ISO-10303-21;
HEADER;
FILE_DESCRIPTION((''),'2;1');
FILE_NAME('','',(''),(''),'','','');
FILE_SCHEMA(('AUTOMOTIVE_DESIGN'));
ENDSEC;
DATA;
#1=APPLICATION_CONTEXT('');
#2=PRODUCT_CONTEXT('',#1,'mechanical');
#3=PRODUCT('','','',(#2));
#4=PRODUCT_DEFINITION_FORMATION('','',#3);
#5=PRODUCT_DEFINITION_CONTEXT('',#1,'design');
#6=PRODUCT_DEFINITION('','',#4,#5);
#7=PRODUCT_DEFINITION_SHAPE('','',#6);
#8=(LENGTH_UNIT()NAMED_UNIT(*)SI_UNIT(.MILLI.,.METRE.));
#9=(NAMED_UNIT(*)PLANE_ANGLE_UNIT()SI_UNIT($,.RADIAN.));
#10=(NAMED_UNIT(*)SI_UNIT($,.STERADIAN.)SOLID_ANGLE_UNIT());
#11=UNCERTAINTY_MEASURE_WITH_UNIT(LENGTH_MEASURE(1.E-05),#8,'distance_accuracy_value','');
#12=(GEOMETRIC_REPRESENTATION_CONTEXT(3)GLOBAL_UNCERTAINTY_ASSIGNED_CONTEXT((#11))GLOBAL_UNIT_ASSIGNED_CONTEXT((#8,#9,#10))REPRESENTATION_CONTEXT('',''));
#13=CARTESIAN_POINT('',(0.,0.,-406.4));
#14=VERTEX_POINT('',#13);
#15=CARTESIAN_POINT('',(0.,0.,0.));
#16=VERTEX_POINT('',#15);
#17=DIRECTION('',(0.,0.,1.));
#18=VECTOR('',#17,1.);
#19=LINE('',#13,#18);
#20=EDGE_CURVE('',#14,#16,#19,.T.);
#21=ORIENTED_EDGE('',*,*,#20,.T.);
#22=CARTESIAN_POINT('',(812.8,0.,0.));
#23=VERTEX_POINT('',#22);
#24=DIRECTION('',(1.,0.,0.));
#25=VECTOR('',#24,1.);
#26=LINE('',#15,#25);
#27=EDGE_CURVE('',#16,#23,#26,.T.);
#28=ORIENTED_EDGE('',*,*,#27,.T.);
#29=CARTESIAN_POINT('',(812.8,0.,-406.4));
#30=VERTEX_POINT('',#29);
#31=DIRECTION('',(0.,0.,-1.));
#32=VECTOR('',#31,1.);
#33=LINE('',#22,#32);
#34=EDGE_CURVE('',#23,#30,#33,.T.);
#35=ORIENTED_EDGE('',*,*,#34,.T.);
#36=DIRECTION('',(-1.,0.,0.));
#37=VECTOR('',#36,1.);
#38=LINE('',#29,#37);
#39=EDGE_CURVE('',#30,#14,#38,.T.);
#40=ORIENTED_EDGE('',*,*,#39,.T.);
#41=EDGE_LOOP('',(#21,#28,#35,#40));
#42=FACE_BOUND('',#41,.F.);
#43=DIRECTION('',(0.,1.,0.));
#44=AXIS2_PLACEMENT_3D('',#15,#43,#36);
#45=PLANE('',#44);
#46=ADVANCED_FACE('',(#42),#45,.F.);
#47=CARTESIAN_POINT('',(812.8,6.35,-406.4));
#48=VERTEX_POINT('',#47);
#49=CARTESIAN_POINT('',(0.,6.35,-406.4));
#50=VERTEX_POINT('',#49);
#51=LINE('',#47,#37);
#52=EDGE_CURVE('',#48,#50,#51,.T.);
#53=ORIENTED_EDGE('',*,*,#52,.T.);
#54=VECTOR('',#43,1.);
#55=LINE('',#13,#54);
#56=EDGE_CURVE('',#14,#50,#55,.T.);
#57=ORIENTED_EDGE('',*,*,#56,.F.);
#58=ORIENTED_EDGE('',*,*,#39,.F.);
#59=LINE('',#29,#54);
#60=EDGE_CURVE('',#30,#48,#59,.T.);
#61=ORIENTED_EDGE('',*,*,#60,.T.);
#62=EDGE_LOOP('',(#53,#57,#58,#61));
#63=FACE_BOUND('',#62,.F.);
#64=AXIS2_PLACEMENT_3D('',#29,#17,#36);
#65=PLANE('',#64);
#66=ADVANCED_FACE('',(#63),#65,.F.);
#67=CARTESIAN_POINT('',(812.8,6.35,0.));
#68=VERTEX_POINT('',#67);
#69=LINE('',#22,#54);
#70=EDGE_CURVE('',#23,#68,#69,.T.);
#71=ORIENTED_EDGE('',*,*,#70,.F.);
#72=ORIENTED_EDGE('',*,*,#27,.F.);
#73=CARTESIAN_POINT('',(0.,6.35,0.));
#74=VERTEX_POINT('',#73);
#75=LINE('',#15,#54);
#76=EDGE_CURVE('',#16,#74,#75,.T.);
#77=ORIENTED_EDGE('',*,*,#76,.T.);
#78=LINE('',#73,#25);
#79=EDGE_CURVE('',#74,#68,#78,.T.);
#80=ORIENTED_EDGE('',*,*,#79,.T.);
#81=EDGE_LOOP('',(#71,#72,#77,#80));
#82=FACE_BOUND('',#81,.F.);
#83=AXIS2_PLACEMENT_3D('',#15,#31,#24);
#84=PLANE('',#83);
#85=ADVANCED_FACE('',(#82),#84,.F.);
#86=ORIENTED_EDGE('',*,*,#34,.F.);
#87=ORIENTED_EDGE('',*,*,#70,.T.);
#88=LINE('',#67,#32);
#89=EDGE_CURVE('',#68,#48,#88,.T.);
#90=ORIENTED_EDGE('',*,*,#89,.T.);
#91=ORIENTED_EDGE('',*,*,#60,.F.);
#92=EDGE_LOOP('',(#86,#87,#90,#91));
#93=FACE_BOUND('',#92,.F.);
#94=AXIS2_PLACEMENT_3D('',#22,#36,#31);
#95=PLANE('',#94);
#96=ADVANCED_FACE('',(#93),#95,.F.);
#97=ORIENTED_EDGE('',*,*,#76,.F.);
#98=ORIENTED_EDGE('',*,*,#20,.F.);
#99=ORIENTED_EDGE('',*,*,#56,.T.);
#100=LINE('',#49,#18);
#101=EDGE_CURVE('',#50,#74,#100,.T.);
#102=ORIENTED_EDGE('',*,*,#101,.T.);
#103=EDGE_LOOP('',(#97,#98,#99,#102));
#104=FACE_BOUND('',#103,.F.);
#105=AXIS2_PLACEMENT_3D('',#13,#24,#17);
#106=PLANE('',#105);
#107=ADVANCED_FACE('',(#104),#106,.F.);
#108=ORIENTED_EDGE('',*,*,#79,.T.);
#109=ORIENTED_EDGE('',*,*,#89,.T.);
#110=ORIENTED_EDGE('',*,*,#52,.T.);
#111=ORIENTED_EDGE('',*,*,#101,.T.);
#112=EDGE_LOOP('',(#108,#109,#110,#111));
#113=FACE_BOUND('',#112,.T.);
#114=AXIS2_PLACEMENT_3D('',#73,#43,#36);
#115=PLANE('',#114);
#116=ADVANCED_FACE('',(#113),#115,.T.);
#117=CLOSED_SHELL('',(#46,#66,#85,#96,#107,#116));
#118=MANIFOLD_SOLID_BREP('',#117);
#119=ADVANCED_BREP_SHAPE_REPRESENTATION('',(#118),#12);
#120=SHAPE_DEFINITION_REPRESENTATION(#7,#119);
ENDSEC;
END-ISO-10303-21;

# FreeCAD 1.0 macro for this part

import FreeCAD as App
import Part
import Sketcher

V = App.Vector
Q = App.Units.Quantity

doc = App.newDocument("Part")
params = doc.addObject("Spreadsheet::Sheet", "Params")
for row, (alias, value) in enumerate([
    ("sketch1_width", "32 in"),
    ("sketch1_height", "16 in"),
    ("pad1_length", "0.25 in"),
], start=1):
    params.set(f"A{row}", alias)
    params.set(f"B{row}", "=" + value)
    params.setAlias(f"B{row}", alias)

body = doc.addObject("PartDesign::Body", "Body")

sketch1 = doc.addObject("Sketcher::SketchObject", "Sketch")
body.addObject(sketch1)
sketch1.AttachmentSupport = (doc.XZ_Plane, [""])
sketch1.MapMode = "FlatFace"
sketch1.addGeometry(Part.LineSegment(V(0, -406, 0), V(0, 0, 0)), False)
sketch1.addGeometry(Part.LineSegment(V(0, 0, 0), V(813, 0, 0)), False)
sketch1.addGeometry(Part.LineSegment(V(813, 0, 0), V(813, -406, 0)), False)
sketch1.addGeometry(Part.LineSegment(V(813, -406, 0), V(0, -406, 0)), False)
sketch1.addConstraint(Sketcher.Constraint("Coincident", 0, 2, 1, 1))
sketch1.addConstraint(Sketcher.Constraint("Coincident", 1, 2, 2, 1))
sketch1.addConstraint(Sketcher.Constraint("Coincident", 2, 2, 3, 1))
sketch1.addConstraint(Sketcher.Constraint("Coincident", 3, 2, 0, 1))
sketch1.addConstraint(Sketcher.Constraint("Vertical", 0))
sketch1.addConstraint(Sketcher.Constraint("Horizontal", 1))
sketch1.addConstraint(Sketcher.Constraint("Vertical", 2))
sketch1.addConstraint(Sketcher.Constraint("Horizontal", 3))
sketch1.addConstraint(Sketcher.Constraint("Coincident", 0, 2, -1, 1))
sketch1.addConstraint(Sketcher.Constraint("DistanceX", 1, 1, 1, 2, Q("32 in")))
sketch1.addConstraint(Sketcher.Constraint("DistanceY", 0, 1, 0, 2, Q("16 in")))
sketch1.setExpression("Constraints[9]", "Params.sketch1_width")
sketch1.setExpression("Constraints[10]", "Params.sketch1_height")
pad1 = doc.addObject("PartDesign::Pad", "Pad")
body.addObject(pad1)
pad1.Profile = sketch1
pad1.setExpression("Length", "Params.pad1_length")
pad1.Reversed = True

doc.recompute()
